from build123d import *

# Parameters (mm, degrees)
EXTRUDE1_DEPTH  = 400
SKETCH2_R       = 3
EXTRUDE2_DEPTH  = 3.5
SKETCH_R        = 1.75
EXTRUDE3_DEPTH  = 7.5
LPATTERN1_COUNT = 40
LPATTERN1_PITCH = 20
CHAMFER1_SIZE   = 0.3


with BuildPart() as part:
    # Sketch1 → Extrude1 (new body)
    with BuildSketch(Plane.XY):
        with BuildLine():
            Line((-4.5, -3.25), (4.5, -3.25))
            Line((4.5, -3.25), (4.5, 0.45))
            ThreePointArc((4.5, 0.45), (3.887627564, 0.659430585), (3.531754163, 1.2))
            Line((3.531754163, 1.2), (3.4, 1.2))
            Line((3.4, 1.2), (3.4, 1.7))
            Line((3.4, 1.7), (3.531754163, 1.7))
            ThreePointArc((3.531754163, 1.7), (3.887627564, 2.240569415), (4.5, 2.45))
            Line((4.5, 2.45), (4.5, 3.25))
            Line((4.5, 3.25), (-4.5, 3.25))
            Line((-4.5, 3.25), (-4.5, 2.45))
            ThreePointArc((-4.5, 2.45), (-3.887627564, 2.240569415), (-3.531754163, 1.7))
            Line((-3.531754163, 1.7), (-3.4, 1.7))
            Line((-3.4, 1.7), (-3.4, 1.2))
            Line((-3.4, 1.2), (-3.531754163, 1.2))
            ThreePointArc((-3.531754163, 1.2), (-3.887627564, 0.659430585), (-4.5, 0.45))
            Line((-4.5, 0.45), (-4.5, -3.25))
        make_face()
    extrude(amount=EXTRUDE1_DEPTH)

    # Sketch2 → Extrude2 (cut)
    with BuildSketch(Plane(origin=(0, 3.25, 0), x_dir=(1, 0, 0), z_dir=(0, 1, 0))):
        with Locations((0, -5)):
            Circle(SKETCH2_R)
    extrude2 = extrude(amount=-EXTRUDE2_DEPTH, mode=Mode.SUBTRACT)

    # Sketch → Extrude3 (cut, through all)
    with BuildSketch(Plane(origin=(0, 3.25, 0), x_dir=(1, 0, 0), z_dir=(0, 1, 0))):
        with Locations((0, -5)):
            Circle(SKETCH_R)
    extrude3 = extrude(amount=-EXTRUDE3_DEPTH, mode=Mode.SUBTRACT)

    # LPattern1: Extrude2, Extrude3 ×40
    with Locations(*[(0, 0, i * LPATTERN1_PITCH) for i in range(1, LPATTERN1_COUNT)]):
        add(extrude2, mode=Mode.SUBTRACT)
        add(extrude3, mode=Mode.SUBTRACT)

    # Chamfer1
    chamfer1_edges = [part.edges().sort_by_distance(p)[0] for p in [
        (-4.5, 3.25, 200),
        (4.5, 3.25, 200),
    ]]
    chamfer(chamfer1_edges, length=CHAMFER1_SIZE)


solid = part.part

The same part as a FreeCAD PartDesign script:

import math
import FreeCAD as App
import Part
import Sketcher

V = App.Vector


def edges_at(feature, points):
    """Names of the edges that pass closest to the given points."""
    edges = feature.Shape.Edges
    near = lambda p: min(range(len(edges)), key=lambda i: edges[i].distToShape(Part.Vertex(*p))[0])
    return sorted({f"Edge{near(p) + 1}" for p in points})

doc = App.newDocument("Part")
params = doc.addObject("Spreadsheet::Sheet", "Params")
for row, (alias, value) in enumerate([
    ("sketch1_radius", "1 mm"),
    ("sketch1_width", "9 mm"),
    ("sketch1_height", "3.7 mm"),
    ("sketch1_height2", "0.5 mm"),
    ("sketch1_height3", "0.8 mm"),
    ("pad1_length", "400 mm"),
    ("sketch2_diameter", "6 mm"),
    ("pocket1_length", "3.5 mm"),
    ("sketch3_diameter", "3.5 mm"),
    ("linearpattern_pitch", "20 mm"),
    ("chamfer_size", "0.3 mm"),
], start=1):
    params.set(f"A{row}", alias)
    params.set(f"B{row}", "=" + value)
    params.setAlias(f"B{row}", alias)

body = doc.addObject("PartDesign::Body", "Body")

# Sketch on XY plane
sketch1 = body.newObject("Sketcher::SketchObject", "Sketch")
sketch1.AttachmentSupport = (doc.getObject("XY_Plane"), [""])
sketch1.MapMode = "FlatFace"
sketch1.addGeometry([
    Part.LineSegment(V(-4.5, -3.25, 0), V(4.5, -3.25, 0)),  # 0
    Part.LineSegment(V(4.5, -3.25, 0), V(4.5, 0.45, 0)),  # 1
    Part.ArcOfCircle(Part.Circle(V(4.5, 1.45, 0), V(0, 0, 1), 1), math.radians(-165.522488), math.radians(-90)),  # 2
    Part.LineSegment(V(3.531754, 1.2, 0), V(3.4, 1.2, 0)),  # 3
    Part.LineSegment(V(3.4, 1.2, 0), V(3.4, 1.7, 0)),  # 4
    Part.LineSegment(V(3.4, 1.7, 0), V(3.531754, 1.7, 0)),  # 5
    Part.ArcOfCircle(Part.Circle(V(4.5, 1.45, 0), V(0, 0, 1), 1), math.radians(90), math.radians(165.522488)),  # 6
    Part.LineSegment(V(4.5, 2.45, 0), V(4.5, 3.25, 0)),  # 7
    Part.LineSegment(V(4.5, 3.25, 0), V(-4.5, 3.25, 0)),  # 8
    Part.LineSegment(V(-4.5, 3.25, 0), V(-4.5, 2.45, 0)),  # 9
    Part.ArcOfCircle(Part.Circle(V(-4.5, 1.45, 0), V(0, 0, 1), 1), math.radians(14.477512), math.radians(90)),  # 10
    Part.LineSegment(V(-3.531754, 1.7, 0), V(-3.4, 1.7, 0)),  # 11
    Part.LineSegment(V(-3.4, 1.7, 0), V(-3.4, 1.2, 0)),  # 12
    Part.LineSegment(V(-3.4, 1.2, 0), V(-3.531754, 1.2, 0)),  # 13
    Part.ArcOfCircle(Part.Circle(V(-4.5, 1.45, 0), V(0, 0, 1), 1), math.radians(-90), math.radians(-14.477512)),  # 14
    Part.LineSegment(V(-4.5, 0.45, 0), V(-4.5, -3.25, 0)),  # 15
], False)
sketch1.addConstraint([
    Sketcher.Constraint("Coincident", 0, 2, 1, 1),
    Sketcher.Constraint("Coincident", 1, 2, 2, 2),
    Sketcher.Constraint("Coincident", 2, 1, 3, 1),
    Sketcher.Constraint("Coincident", 3, 2, 4, 1),
    Sketcher.Constraint("Coincident", 4, 2, 5, 1),
    Sketcher.Constraint("Coincident", 5, 2, 6, 2),
    Sketcher.Constraint("Coincident", 6, 1, 7, 1),
    Sketcher.Constraint("Coincident", 7, 2, 8, 1),
    Sketcher.Constraint("Coincident", 8, 2, 9, 1),
    Sketcher.Constraint("Coincident", 9, 2, 10, 2),
    Sketcher.Constraint("Coincident", 10, 1, 11, 1),
    Sketcher.Constraint("Coincident", 11, 2, 12, 1),
    Sketcher.Constraint("Coincident", 12, 2, 13, 1),
    Sketcher.Constraint("Coincident", 13, 2, 14, 2),
    Sketcher.Constraint("Coincident", 14, 1, 15, 1),
    Sketcher.Constraint("Coincident", 15, 2, 0, 1),
    Sketcher.Constraint("Horizontal", 0),
    Sketcher.Constraint("Vertical", 1),
    Sketcher.Constraint("Horizontal", 3),
    Sketcher.Constraint("Vertical", 4),
    Sketcher.Constraint("Horizontal", 5),
    Sketcher.Constraint("Vertical", 7),
    Sketcher.Constraint("Horizontal", 8),
    Sketcher.Constraint("Vertical", 9),
    Sketcher.Constraint("Horizontal", 11),
    Sketcher.Constraint("Vertical", 12),
    Sketcher.Constraint("Horizontal", 13),
    Sketcher.Constraint("Vertical", 15),
    Sketcher.Constraint("Coincident", 6, 3, 2, 3),
    Sketcher.Constraint("Coincident", 14, 3, 10, 3),
    Sketcher.Constraint("Equal", 2, 6),
    Sketcher.Constraint("Equal", 6, 10),
    Sketcher.Constraint("Equal", 10, 14),
    Sketcher.Constraint("Symmetric", 0, 2, 8, 2, -1, 1),
    Sketcher.Constraint("Symmetric", 2, 3, 10, 3, -2),
    Sketcher.Constraint("Symmetric", 4, 2, 11, 2, -2),
    Sketcher.Constraint("Horizontal", 3, 2, 12, 2),
    Sketcher.Constraint("Vertical", 6, 3, 0, 2),
    Sketcher.Constraint("Vertical", 2, 1, 5, 2),
    Sketcher.Constraint("Vertical", 1, 2, 6, 1),
    Sketcher.Constraint("Vertical", 9, 2, 14, 1),
    Sketcher.Constraint("Radius", 2, 1.0),
    Sketcher.Constraint("DistanceX", 0, 1, 0, 2, 9.0),
    Sketcher.Constraint("DistanceY", 1, 1, 1, 2, 3.7),
    Sketcher.Constraint("DistanceY", 4, 1, 4, 2, 0.5),
    Sketcher.Constraint("DistanceY", 7, 1, 7, 2, 0.8),
    Sketcher.Constraint("DistanceX", -1, 1, 3, 2, 3.4),
])
sketch1.setExpression("Constraints[41]", "Params.sketch1_radius")
sketch1.setExpression("Constraints[42]", "Params.sketch1_width")
sketch1.setExpression("Constraints[43]", "Params.sketch1_height")
sketch1.setExpression("Constraints[44]", "Params.sketch1_height2")
sketch1.setExpression("Constraints[45]", "Params.sketch1_height3")
pad1 = body.newObject("PartDesign::Pad", "Pad")
pad1.Profile = sketch1
pad1.setExpression("Length", "Params.pad1_length")

# Sketch on XZ plane
sketch2 = body.newObject("Sketcher::SketchObject", "Sketch001")
sketch2.AttachmentSupport = (doc.getObject("XZ_Plane"), [""])
sketch2.MapMode = "FlatFace"
sketch2.AttachmentOffset = App.Placement(V(0, 0, -3.25), App.Rotation())
sketch2.addGeometry(Part.Circle(V(0, 5, 0), V(0, 0, 1), 3), False)
sketch2.addConstraint([
    Sketcher.Constraint("PointOnObject", 0, 3, -2),
    Sketcher.Constraint("Diameter", 0, 6.0),
    Sketcher.Constraint("DistanceY", -1, 1, 0, 3, 5.0),
])
sketch2.setExpression("Constraints[1]", "Params.sketch2_diameter")
pocket1 = body.newObject("PartDesign::Pocket", "Pocket")
pocket1.Profile = sketch2
pocket1.setExpression("Length", "Params.pocket1_length")
pocket1.Reversed = True

# Sketch on XZ plane
sketch3 = body.newObject("Sketcher::SketchObject", "Sketch002")
sketch3.AttachmentSupport = (doc.getObject("XZ_Plane"), [""])
sketch3.MapMode = "FlatFace"
sketch3.AttachmentOffset = App.Placement(V(0, 0, -3.25), App.Rotation())
sketch3.addGeometry(Part.Circle(V(0, 5, 0), V(0, 0, 1), 1.75), False)
sketch3.addConstraint([
    Sketcher.Constraint("PointOnObject", 0, 3, -2),
    Sketcher.Constraint("Diameter", 0, 3.5),
    Sketcher.Constraint("DistanceY", -1, 1, 0, 3, 5.0),
])
sketch3.setExpression("Constraints[1]", "Params.sketch3_diameter")
pocket2 = body.newObject("PartDesign::Pocket", "Pocket001")
pocket2.Profile = sketch3
pocket2.Type = "ThroughAll"
pocket2.Reversed = True
doc.recompute()

linearpattern = body.newObject("PartDesign::LinearPattern", "LinearPattern")
linearpattern.Originals = [pocket1, pocket2]
linearpattern.Direction = (doc.getObject("Z_Axis"), [""])
linearpattern.Mode = "offset"
linearpattern.setExpression("Offset", "Params.linearpattern_pitch")
linearpattern.Occurrences = 40
body.Tip = linearpattern
doc.recompute()

chamfer = body.newObject("PartDesign::Chamfer", "Chamfer")
chamfer.Base = (linearpattern, edges_at(linearpattern, [(-4.5, 3.25, 200), (4.5, 3.25, 200)]))
chamfer.setExpression("Size", "Params.chamfer_size")

doc.recompute()
